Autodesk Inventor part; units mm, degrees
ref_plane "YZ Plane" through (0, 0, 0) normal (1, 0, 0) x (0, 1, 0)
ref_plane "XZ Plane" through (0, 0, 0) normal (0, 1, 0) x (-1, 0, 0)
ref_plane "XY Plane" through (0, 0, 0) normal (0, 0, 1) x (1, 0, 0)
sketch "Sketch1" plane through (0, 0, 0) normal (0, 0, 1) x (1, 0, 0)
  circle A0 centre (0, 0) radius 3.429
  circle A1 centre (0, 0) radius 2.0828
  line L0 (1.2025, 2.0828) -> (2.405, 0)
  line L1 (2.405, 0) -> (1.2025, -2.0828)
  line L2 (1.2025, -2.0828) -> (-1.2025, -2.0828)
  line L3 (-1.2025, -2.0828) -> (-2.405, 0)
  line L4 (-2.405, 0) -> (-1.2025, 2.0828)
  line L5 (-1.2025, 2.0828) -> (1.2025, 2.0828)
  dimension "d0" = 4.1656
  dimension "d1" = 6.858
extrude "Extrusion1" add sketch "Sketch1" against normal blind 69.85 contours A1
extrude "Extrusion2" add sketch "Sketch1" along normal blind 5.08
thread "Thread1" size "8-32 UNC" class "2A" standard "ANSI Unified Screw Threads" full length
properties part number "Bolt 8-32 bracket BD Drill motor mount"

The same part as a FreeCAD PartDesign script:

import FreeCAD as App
import Part
import Sketcher

V = App.Vector
Q = App.Units.Quantity


def add_polygon(sketch, points):
    """Adds a closed chain of lines whose ends are joined by coincident constraints."""
    first, n = sketch.GeometryCount, len(points)
    for a, b in zip(points, points[1:] + points[:1]):
        sketch.addGeometry(Part.LineSegment(App.Vector(*a, 0), App.Vector(*b, 0)), False)
    for i in range(n):
        sketch.addConstraint(Sketcher.Constraint("Coincident", first + i, 2, first + (i + 1) % n, 1))

doc = App.newDocument("Part")
body = doc.addObject("PartDesign::Body", "Body")
body.AllowCompound = True

# Sketch on XY plane
sketch1 = body.newObject("Sketcher::SketchObject", "Sketch")
sketch1.AttachmentSupport = (doc.getObject("XY_Plane"), [""])
sketch1.MapMode = "FlatFace"
sketch1.addGeometry(Part.Circle(V(0, 0, 0), V(0, 0, 1), 2.1), False)
sketch1.addConstraint([
    Sketcher.Constraint("Coincident", 0, 3, -1, 1),
    Sketcher.Constraint("Diameter", 0, Q("0.164 in")),
])
pad1 = body.newObject("PartDesign::Pad", "Pad")
pad1.Profile = sketch1
pad1.Length = Q("2.75 in")
pad1.Reversed = True

# Sketch on XY plane
sketch2 = body.newObject("Sketcher::SketchObject", "Sketch001")
sketch2.AttachmentSupport = (doc.getObject("XY_Plane"), [""])
sketch2.MapMode = "FlatFace"
sketch2.addGeometry(Part.Circle(V(0, 0, 0), V(0, 0, 1), 3.4), False)  # 0
add_polygon(sketch2, [(1.2, 2.1), (2.4, 0), (1.2, -2.1), (-1.2, -2.1), (-2.4, 0), (-1.2, 2.1)])  # lines 1-6
sketch2.addConstraint([
    Sketcher.Constraint("Horizontal", 3),
    Sketcher.Constraint("Horizontal", 6),
    Sketcher.Constraint("Coincident", 0, 3, -1, 1),
    Sketcher.Constraint("Symmetric", 1, 2, 4, 2, -1, 1),
    Sketcher.Constraint("Symmetric", 2, 2, 5, 2, -1, 1),
    Sketcher.Constraint("PointOnObject", 1, 2, -1),
    Sketcher.Constraint("Parallel", 1, 4),
    Sketcher.Constraint("Vertical", 3, 2, 5, 2),
    Sketcher.Constraint("Diameter", 0, Q("0.27 in")),
    Sketcher.Constraint("Angle", 1, Q("-60 deg")),
    Sketcher.Constraint("DistanceY", 3, 2, 5, 2, Q("0.164 in")),
    Sketcher.Constraint("DistanceX", 3, 2, 3, 1, 2.405),
])
pad2 = body.newObject("PartDesign::Pad", "Pad001")
pad2.Profile = sketch2
pad2.Length = Q("0.2 in")

doc.recompute()
